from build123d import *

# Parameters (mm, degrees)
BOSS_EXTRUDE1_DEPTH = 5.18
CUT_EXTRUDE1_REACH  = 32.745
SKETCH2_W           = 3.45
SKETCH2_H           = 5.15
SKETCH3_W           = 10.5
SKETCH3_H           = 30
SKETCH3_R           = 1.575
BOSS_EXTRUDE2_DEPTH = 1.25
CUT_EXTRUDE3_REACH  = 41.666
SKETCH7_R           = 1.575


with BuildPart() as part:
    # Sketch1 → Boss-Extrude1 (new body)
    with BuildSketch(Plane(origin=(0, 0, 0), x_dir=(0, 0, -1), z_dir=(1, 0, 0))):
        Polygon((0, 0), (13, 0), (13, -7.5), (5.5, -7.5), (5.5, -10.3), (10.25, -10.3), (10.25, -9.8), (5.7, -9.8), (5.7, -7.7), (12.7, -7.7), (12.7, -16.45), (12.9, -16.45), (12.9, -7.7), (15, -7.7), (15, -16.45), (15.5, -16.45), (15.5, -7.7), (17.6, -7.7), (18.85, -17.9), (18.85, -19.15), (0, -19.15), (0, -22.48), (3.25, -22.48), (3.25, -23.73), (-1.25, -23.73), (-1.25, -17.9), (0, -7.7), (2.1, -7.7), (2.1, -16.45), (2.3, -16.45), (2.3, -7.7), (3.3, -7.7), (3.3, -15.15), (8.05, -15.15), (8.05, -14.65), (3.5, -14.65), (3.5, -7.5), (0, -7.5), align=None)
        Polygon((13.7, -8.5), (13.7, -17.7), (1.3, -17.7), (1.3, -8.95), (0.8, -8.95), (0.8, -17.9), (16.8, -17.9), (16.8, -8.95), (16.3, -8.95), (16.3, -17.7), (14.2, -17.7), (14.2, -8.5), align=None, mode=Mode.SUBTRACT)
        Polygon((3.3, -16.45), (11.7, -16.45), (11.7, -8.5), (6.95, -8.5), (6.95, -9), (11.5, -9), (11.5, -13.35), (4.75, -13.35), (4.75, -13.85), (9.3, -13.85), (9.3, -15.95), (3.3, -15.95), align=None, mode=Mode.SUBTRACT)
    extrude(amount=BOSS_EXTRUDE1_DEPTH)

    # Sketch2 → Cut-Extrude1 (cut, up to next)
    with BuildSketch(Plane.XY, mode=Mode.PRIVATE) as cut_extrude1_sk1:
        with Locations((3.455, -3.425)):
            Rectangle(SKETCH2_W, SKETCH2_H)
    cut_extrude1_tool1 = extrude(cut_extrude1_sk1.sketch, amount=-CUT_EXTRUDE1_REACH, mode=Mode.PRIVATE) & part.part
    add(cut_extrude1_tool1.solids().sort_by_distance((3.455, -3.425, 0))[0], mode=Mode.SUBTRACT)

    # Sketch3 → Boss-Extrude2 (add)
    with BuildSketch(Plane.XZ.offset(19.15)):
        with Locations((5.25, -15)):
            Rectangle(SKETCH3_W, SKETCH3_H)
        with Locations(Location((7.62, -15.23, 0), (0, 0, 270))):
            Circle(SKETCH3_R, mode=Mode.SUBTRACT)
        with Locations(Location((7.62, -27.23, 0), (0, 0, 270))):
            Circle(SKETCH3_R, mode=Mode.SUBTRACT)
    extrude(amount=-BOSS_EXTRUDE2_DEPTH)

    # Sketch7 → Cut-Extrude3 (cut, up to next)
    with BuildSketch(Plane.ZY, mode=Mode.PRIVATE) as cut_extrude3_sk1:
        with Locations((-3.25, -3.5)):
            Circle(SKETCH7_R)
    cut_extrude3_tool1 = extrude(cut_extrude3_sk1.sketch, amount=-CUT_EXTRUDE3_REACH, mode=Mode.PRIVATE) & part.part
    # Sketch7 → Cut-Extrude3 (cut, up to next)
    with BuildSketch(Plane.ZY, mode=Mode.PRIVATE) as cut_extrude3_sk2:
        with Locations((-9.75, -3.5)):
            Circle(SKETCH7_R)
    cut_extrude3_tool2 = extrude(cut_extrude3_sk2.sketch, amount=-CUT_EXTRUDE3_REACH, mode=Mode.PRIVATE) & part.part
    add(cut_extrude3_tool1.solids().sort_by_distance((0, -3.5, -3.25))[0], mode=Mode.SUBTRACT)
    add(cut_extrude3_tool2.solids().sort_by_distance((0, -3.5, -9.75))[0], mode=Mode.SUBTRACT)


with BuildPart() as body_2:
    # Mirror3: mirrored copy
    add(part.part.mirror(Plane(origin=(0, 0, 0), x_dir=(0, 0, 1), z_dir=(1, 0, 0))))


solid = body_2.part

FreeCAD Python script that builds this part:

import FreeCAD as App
import Part
import Sketcher
from FreeCAD import Vector
Q = App.Units.Quantity

doc = App.newDocument("Part")
params = doc.addObject("Spreadsheet::Sheet", "Params")
for row, (alias, value) in enumerate([
    ("sketch1_height", "13 mm"),
    ("sketch1_height2", "1 mm"),
    ("sketch1_height3", "7 mm"),
    ("sketch1_height4", "16 mm"),
    ("sketch1_height5", "6 mm"),
    ("pad1_length", "5.18 mm"),
    ("sketch2_width", "3.45 mm"),
    ("sketch2_height", "5.15 mm"),
    ("sketch3_diameter", "3.15 mm"),
    ("sketch3_height", "30 mm"),
    ("sketch3_width", "10.5 mm"),
    ("pad2_length", "1.25 mm"),
    ("sketch4_diameter", "3.15 mm"),
    ("sketch5_diameter", "3.15 mm"),
], start=1):
    params.set(f"A{row}", alias)
    params.set(f"B{row}", "=" + value)
    params.setAlias(f"B{row}", alias)

body = doc.addObject("PartDesign::Body", "Body")

sketch1 = doc.addObject("Sketcher::SketchObject", "Sketch")
body.addObject(sketch1)
sketch1.AttachmentSupport = (doc.YZ_Plane, [""])
sketch1.MapMode = "FlatFace"
sketch1.addGeometry([
    Part.LineSegment(Vector(0, -13, 0), Vector(0, 0, 0)),
    Part.LineSegment(Vector(0, 0, 0), Vector(-7.5, 0, 0)),
    Part.LineSegment(Vector(-7.5, 0, 0), Vector(-7.5, -3.5, 0)),
    Part.LineSegment(Vector(-7.5, -3.5, 0), Vector(-14.65, -3.5, 0)),
    Part.LineSegment(Vector(-14.65, -3.5, 0), Vector(-14.65, -8.05, 0)),
    Part.LineSegment(Vector(-14.65, -8.05, 0), Vector(-15.15, -8.05, 0)),
    Part.LineSegment(Vector(-15.15, -8.05, 0), Vector(-15.15, -3.3, 0)),
    Part.LineSegment(Vector(-15.15, -3.3, 0), Vector(-7.7, -3.3, 0)),
    Part.LineSegment(Vector(-7.7, -3.3, 0), Vector(-7.7, -2.3, 0)),
    Part.LineSegment(Vector(-7.7, -2.3, 0), Vector(-16.45, -2.3, 0)),
    Part.LineSegment(Vector(-16.45, -2.3, 0), Vector(-16.45, -2.1, 0)),
    Part.LineSegment(Vector(-16.45, -2.1, 0), Vector(-7.7, -2.1, 0)),
    Part.LineSegment(Vector(-7.7, -2.1, 0), Vector(-7.7, 0, 0)),
    Part.LineSegment(Vector(-7.7, 0, 0), Vector(-17.9, 1.25, 0)),
    Part.LineSegment(Vector(-17.9, 1.25, 0), Vector(-23.73, 1.25, 0)),
    Part.LineSegment(Vector(-23.73, 1.25, 0), Vector(-23.73, -3.25, 0)),
    Part.LineSegment(Vector(-23.73, -3.25, 0), Vector(-22.48, -3.25, 0)),
    Part.LineSegment(Vector(-22.48, -3.25, 0), Vector(-22.48, 0, 0)),
    Part.LineSegment(Vector(-22.48, 0, 0), Vector(-19.15, 0, 0)),
    Part.LineSegment(Vector(-19.15, 0, 0), Vector(-19.15, -18.85, 0)),
    Part.LineSegment(Vector(-19.15, -18.85, 0), Vector(-17.9, -18.85, 0)),
    Part.LineSegment(Vector(-17.9, -18.85, 0), Vector(-7.7, -17.6, 0)),
    Part.LineSegment(Vector(-7.7, -17.6, 0), Vector(-7.7, -15.5, 0)),
    Part.LineSegment(Vector(-7.7, -15.5, 0), Vector(-16.45, -15.5, 0)),
    Part.LineSegment(Vector(-16.45, -15.5, 0), Vector(-16.45, -15, 0)),
    Part.LineSegment(Vector(-16.45, -15, 0), Vector(-7.7, -15, 0)),
    Part.LineSegment(Vector(-7.7, -15, 0), Vector(-7.7, -12.9, 0)),
    Part.LineSegment(Vector(-7.7, -12.9, 0), Vector(-16.45, -12.9, 0)),
    Part.LineSegment(Vector(-16.45, -12.9, 0), Vector(-16.45, -12.7, 0)),
    Part.LineSegment(Vector(-16.45, -12.7, 0), Vector(-7.7, -12.7, 0)),
    Part.LineSegment(Vector(-7.7, -12.7, 0), Vector(-7.7, -5.7, 0)),
    Part.LineSegment(Vector(-7.7, -5.7, 0), Vector(-9.8, -5.7, 0)),
    Part.LineSegment(Vector(-9.8, -5.7, 0), Vector(-9.8, -10.25, 0)),
    Part.LineSegment(Vector(-9.8, -10.25, 0), Vector(-10.3, -10.25, 0)),
    Part.LineSegment(Vector(-10.3, -10.25, 0), Vector(-10.3, -5.5, 0)),
    Part.LineSegment(Vector(-10.3, -5.5, 0), Vector(-7.5, -5.5, 0)),
    Part.LineSegment(Vector(-7.5, -5.5, 0), Vector(-7.5, -13, 0)),
    Part.LineSegment(Vector(-7.5, -13, 0), Vector(0, -13, 0)),
    Part.LineSegment(Vector(-8.5, -13.7, 0), Vector(-8.5, -14.2, 0)),
    Part.LineSegment(Vector(-8.5, -14.2, 0), Vector(-17.7, -14.2, 0)),
    Part.LineSegment(Vector(-17.7, -14.2, 0), Vector(-17.7, -16.3, 0)),
    Part.LineSegment(Vector(-17.7, -16.3, 0), Vector(-8.95, -16.3, 0)),
    Part.LineSegment(Vector(-8.95, -16.3, 0), Vector(-8.95, -16.8, 0)),
    Part.LineSegment(Vector(-8.95, -16.8, 0), Vector(-17.9, -16.8, 0)),
    Part.LineSegment(Vector(-17.9, -16.8, 0), Vector(-17.9, -0.8, 0)),
    Part.LineSegment(Vector(-17.9, -0.8, 0), Vector(-8.95, -0.8, 0)),
    Part.LineSegment(Vector(-8.95, -0.8, 0), Vector(-8.95, -1.3, 0)),
    Part.LineSegment(Vector(-8.95, -1.3, 0), Vector(-17.7, -1.3, 0)),
    Part.LineSegment(Vector(-17.7, -1.3, 0), Vector(-17.7, -13.7, 0)),
    Part.LineSegment(Vector(-17.7, -13.7, 0), Vector(-8.5, -13.7, 0)),
    Part.LineSegment(Vector(-16.45, -3.3, 0), Vector(-15.95, -3.3, 0)),
    Part.LineSegment(Vector(-15.95, -3.3, 0), Vector(-15.95, -9.3, 0)),
    Part.LineSegment(Vector(-15.95, -9.3, 0), Vector(-13.85, -9.3, 0)),
    Part.LineSegment(Vector(-13.85, -9.3, 0), Vector(-13.85, -4.75, 0)),
    Part.LineSegment(Vector(-13.85, -4.75, 0), Vector(-13.35, -4.75, 0)),
    Part.LineSegment(Vector(-13.35, -4.75, 0), Vector(-13.35, -11.5, 0)),
    Part.LineSegment(Vector(-13.35, -11.5, 0), Vector(-9, -11.5, 0)),
    Part.LineSegment(Vector(-9, -11.5, 0), Vector(-9, -6.95, 0)),
    Part.LineSegment(Vector(-9, -6.95, 0), Vector(-8.5, -6.95, 0)),
    Part.LineSegment(Vector(-8.5, -6.95, 0), Vector(-8.5, -11.7, 0)),
    Part.LineSegment(Vector(-8.5, -11.7, 0), Vector(-16.45, -11.7, 0)),
    Part.LineSegment(Vector(-16.45, -11.7, 0), Vector(-16.45, -3.3, 0)),
], False)
sketch1.addConstraint([
    Sketcher.Constraint("Coincident", 0, 2, 1, 1),
    Sketcher.Constraint("Coincident", 1, 2, 2, 1),
    Sketcher.Constraint("Coincident", 2, 2, 3, 1),
    Sketcher.Constraint("Coincident", 3, 2, 4, 1),
    Sketcher.Constraint("Coincident", 4, 2, 5, 1),
    Sketcher.Constraint("Coincident", 5, 2, 6, 1),
    Sketcher.Constraint("Coincident", 6, 2, 7, 1),
    Sketcher.Constraint("Coincident", 7, 2, 8, 1),
    Sketcher.Constraint("Coincident", 8, 2, 9, 1),
    Sketcher.Constraint("Coincident", 9, 2, 10, 1),
    Sketcher.Constraint("Coincident", 10, 2, 11, 1),
    Sketcher.Constraint("Coincident", 11, 2, 12, 1),
    Sketcher.Constraint("Coincident", 12, 2, 13, 1),
    Sketcher.Constraint("Coincident", 13, 2, 14, 1),
    Sketcher.Constraint("Coincident", 14, 2, 15, 1),
    Sketcher.Constraint("Coincident", 15, 2, 16, 1),
    Sketcher.Constraint("Coincident", 16, 2, 17, 1),
    Sketcher.Constraint("Coincident", 17, 2, 18, 1),
    Sketcher.Constraint("Coincident", 18, 2, 19, 1),
    Sketcher.Constraint("Coincident", 19, 2, 20, 1),
    Sketcher.Constraint("Coincident", 20, 2, 21, 1),
    Sketcher.Constraint("Coincident", 21, 2, 22, 1),
    Sketcher.Constraint("Coincident", 22, 2, 23, 1),
    Sketcher.Constraint("Coincident", 23, 2, 24, 1),
    Sketcher.Constraint("Coincident", 24, 2, 25, 1),
    Sketcher.Constraint("Coincident", 25, 2, 26, 1),
    Sketcher.Constraint("Coincident", 26, 2, 27, 1),
    Sketcher.Constraint("Coincident", 27, 2, 28, 1),
    Sketcher.Constraint("Coincident", 28, 2, 29, 1),
    Sketcher.Constraint("Coincident", 29, 2, 30, 1),
    Sketcher.Constraint("Coincident", 30, 2, 31, 1),
    Sketcher.Constraint("Coincident", 31, 2, 32, 1),
    Sketcher.Constraint("Coincident", 32, 2, 33, 1),
    Sketcher.Constraint("Coincident", 33, 2, 34, 1),
    Sketcher.Constraint("Coincident", 34, 2, 35, 1),
    Sketcher.Constraint("Coincident", 35, 2, 36, 1),
    Sketcher.Constraint("Coincident", 36, 2, 37, 1),
    Sketcher.Constraint("Coincident", 37, 2, 0, 1),
    Sketcher.Constraint("Coincident", 38, 2, 39, 1),
    Sketcher.Constraint("Coincident", 39, 2, 40, 1),
    Sketcher.Constraint("Coincident", 40, 2, 41, 1),
    Sketcher.Constraint("Coincident", 41, 2, 42, 1),
    Sketcher.Constraint("Coincident", 42, 2, 43, 1),
    Sketcher.Constraint("Coincident", 43, 2, 44, 1),
    Sketcher.Constraint("Coincident", 44, 2, 45, 1),
    Sketcher.Constraint("Coincident", 45, 2, 46, 1),
    Sketcher.Constraint("Coincident", 46, 2, 47, 1),
    Sketcher.Constraint("Coincident", 47, 2, 48, 1),
    Sketcher.Constraint("Coincident", 48, 2, 49, 1),
    Sketcher.Constraint("Coincident", 49, 2, 38, 1),
    Sketcher.Constraint("Coincident", 50, 2, 51, 1),
    Sketcher.Constraint("Coincident", 51, 2, 52, 1),
    Sketcher.Constraint("Coincident", 52, 2, 53, 1),
    Sketcher.Constraint("Coincident", 53, 2, 54, 1),
    Sketcher.Constraint("Coincident", 54, 2, 55, 1),
    Sketcher.Constraint("Coincident", 55, 2, 56, 1),
    Sketcher.Constraint("Coincident", 56, 2, 57, 1),
    Sketcher.Constraint("Coincident", 57, 2, 58, 1),
    Sketcher.Constraint("Coincident", 58, 2, 59, 1),
    Sketcher.Constraint("Coincident", 59, 2, 60, 1),
    Sketcher.Constraint("Coincident", 60, 2, 61, 1),
    Sketcher.Constraint("Coincident", 61, 2, 50, 1),
    Sketcher.Constraint("Vertical", 0),
    Sketcher.Constraint("Horizontal", 1),
    Sketcher.Constraint("Vertical", 2),
    Sketcher.Constraint("Horizontal", 3),
    Sketcher.Constraint("Vertical", 4),
    Sketcher.Constraint("Horizontal", 5),
    Sketcher.Constraint("Vertical", 6),
    Sketcher.Constraint("Horizontal", 7),
    Sketcher.Constraint("Vertical", 8),
    Sketcher.Constraint("Horizontal", 9),
    Sketcher.Constraint("Vertical", 10),
    Sketcher.Constraint("Horizontal", 11),
    Sketcher.Constraint("Vertical", 12),
    Sketcher.Constraint("Horizontal", 14),
    Sketcher.Constraint("Vertical", 15),
    Sketcher.Constraint("Horizontal", 16),
    Sketcher.Constraint("Vertical", 17),
    Sketcher.Constraint("Horizontal", 18),
    Sketcher.Constraint("Vertical", 19),
    Sketcher.Constraint("Horizontal", 20),
    Sketcher.Constraint("Vertical", 22),
    Sketcher.Constraint("Horizontal", 23),
    Sketcher.Constraint("Vertical", 24),
    Sketcher.Constraint("Horizontal", 25),
    Sketcher.Constraint("Vertical", 26),
    Sketcher.Constraint("Horizontal", 27),
    Sketcher.Constraint("Vertical", 28),
    Sketcher.Constraint("Horizontal", 29),
    Sketcher.Constraint("Vertical", 30),
    Sketcher.Constraint("Horizontal", 31),
    Sketcher.Constraint("Vertical", 32),
    Sketcher.Constraint("Horizontal", 33),
    Sketcher.Constraint("Vertical", 34),
    Sketcher.Constraint("Horizontal", 35),
    Sketcher.Constraint("Vertical", 36),
    Sketcher.Constraint("Horizontal", 37),
    Sketcher.Constraint("Vertical", 38),
    Sketcher.Constraint("Horizontal", 39),
    Sketcher.Constraint("Vertical", 40),
    Sketcher.Constraint("Horizontal", 41),
    Sketcher.Constraint("Vertical", 42),
    Sketcher.Constraint("Horizontal", 43),
    Sketcher.Constraint("Vertical", 44),
    Sketcher.Constraint("Horizontal", 45),
    Sketcher.Constraint("Vertical", 46),
    Sketcher.Constraint("Horizontal", 47),
    Sketcher.Constraint("Vertical", 48),
    Sketcher.Constraint("Horizontal", 49),
    Sketcher.Constraint("Horizontal", 50),
    Sketcher.Constraint("Vertical", 51),
    Sketcher.Constraint("Horizontal", 52),
    Sketcher.Constraint("Vertical", 53),
    Sketcher.Constraint("Horizontal", 54),
    Sketcher.Constraint("Vertical", 55),
    Sketcher.Constraint("Horizontal", 56),
    Sketcher.Constraint("Vertical", 57),
    Sketcher.Constraint("Horizontal", 58),
    Sketcher.Constraint("Vertical", 59),
    Sketcher.Constraint("Horizontal", 60),
    Sketcher.Constraint("Vertical", 61),
    Sketcher.Constraint("Coincident", 0, 2, -1, 1),
    Sketcher.Constraint("PointOnObject", 12, 2, -1),
    Sketcher.Constraint("PointOnObject", 17, 2, -1),
    Sketcher.Constraint("Horizontal", 7, 2, 50, 2),
    Sketcher.Constraint("Vertical", 8, 2, 11, 2),
    Sketcher.Constraint("Vertical", 13, 2, 20, 2),
    Sketcher.Constraint("Vertical", 12, 2, 21, 2),
    Sketcher.Constraint("Vertical", 10, 2, 23, 2),
    Sketcher.Constraint("Vertical", 22, 2, 25, 2),
    Sketcher.Constraint("Vertical", 24, 2, 27, 2),
    Sketcher.Constraint("Vertical", 26, 2, 29, 2),
    Sketcher.Constraint("Vertical", 2, 2, 35, 2),
    Sketcher.Constraint("Vertical", 20, 2, 43, 2),
    Sketcher.Constraint("Vertical", 42, 2, 45, 2),
    Sketcher.Constraint("Vertical", 40, 2, 47, 2),
    Sketcher.Constraint("Vertical", 49, 2, 58, 2),
    Sketcher.Constraint("Vertical", 28, 2, 60, 2),
    Sketcher.Constraint("Equal", 16, 20),
    Sketcher.Constraint("Equal", 5, 33),
    Sketcher.Constraint("Equal", 29, 41),
    Sketcher.Constraint("Equal", 33, 50),
    Sketcher.Constraint("Equal", 31, 52),
    Sketcher.Constraint("Equal", 50, 54),
    Sketcher.Constraint("Equal", 54, 58),
    Sketcher.Constraint("Equal", 52, 12),
    Sketcher.Constraint("Equal", 12, 22),
    Sketcher.Constraint("Equal", 58, 24),
    Sketcher.Constraint("Equal", 22, 26),
    Sketcher.Constraint("Equal", 10, 28),
    Sketcher.Constraint("Equal", 4, 32),
    Sketcher.Constraint("Equal", 6, 34),
    Sketcher.Constraint("Equal", 37, 36),
    Sketcher.Constraint("Equal", 24, 38),
    Sketcher.Constraint("Equal", 26, 40),
    Sketcher.Constraint("Equal", 38, 42),
    Sketcher.Constraint("Equal", 42, 46),
    Sketcher.Constraint("Equal", 32, 53),
    Sketcher.Constraint("Equal", 53, 57),
    Sketcher.Constraint("Equal", 34, 59),
    Sketcher.Constraint("Equal", 13, 21),
    Sketcher.Constraint("DistanceY", 0, 1, 0, 2, Q("13 mm")),
    Sketcher.Constraint("DistanceY", 8, 1, 8, 2, Q("1 mm")),
    Sketcher.Constraint("DistanceY", 30, 1, 30, 2, Q("7 mm")),
    Sketcher.Constraint("DistanceY", 44, 1, 44, 2, Q("16 mm")),
    Sketcher.Constraint("DistanceY", 51, 2, 51, 1, Q("6 mm")),
    Sketcher.Constraint("DistanceX", 1, 2, 1, 1, Q("7.5 mm")),
    Sketcher.Constraint("DistanceX", 5, 2, 5, 1, Q("0.5 mm")),
    Sketcher.Constraint("DistanceX", 31, 2, 31, 1, Q("2.1 mm")),
    Sketcher.Constraint("DistanceX", 35, 1, 35, 2, Q("2.8 mm")),
    Sketcher.Constraint("DistanceX", 39, 2, 39, 1, Q("9.2 mm")),
    Sketcher.Constraint("DistanceY", 2, 2, 2, 1, Q("3.5 mm")),
    Sketcher.Constraint("DistanceY", 10, 1, 10, 2, Q("0.2 mm")),
    Sketcher.Constraint("DistanceY", 15, 2, 15, 1, Q("4.5 mm")),
    Sketcher.Constraint("DistanceY", 61, 1, 61, 2, Q("8.4 mm")),
    Sketcher.Constraint("DistanceX", 56, 2, -1, 1, Q("9 mm")),
    Sketcher.Constraint("DistanceX", 3, 2, 3, 1, Q("7.15 mm")),
    Sketcher.Constraint("DistanceX", 9, 2, 9, 1, Q("8.75 mm")),
    Sketcher.Constraint("DistanceX", 14, 2, 14, 1, Q("5.83 mm")),
    Sketcher.Constraint("DistanceX", 16, 1, 16, 2, Q("1.25 mm")),
    Sketcher.Constraint("DistanceX", 43, 2, 43, 1, Q("8.95 mm")),
    Sketcher.Constraint("DistanceY", 4, 2, 4, 1, Q("4.55 mm")),
    Sketcher.Constraint("DistanceY", 17, 1, 17, 2, Q("3.25 mm")),
    Sketcher.Constraint("DistanceY", 38, 2, -1, 1, Q("14.2 mm")),
])
sketch1.setExpression("Constraints[162]", "Params.sketch1_height")
sketch1.setExpression("Constraints[163]", "Params.sketch1_height2")
sketch1.setExpression("Constraints[164]", "Params.sketch1_height3")
sketch1.setExpression("Constraints[165]", "Params.sketch1_height4")
sketch1.setExpression("Constraints[166]", "Params.sketch1_height5")
pad1 = doc.addObject("PartDesign::Pad", "Pad")
body.addObject(pad1)
pad1.Profile = sketch1
pad1.setExpression("Length", "Params.pad1_length")

sketch2 = doc.addObject("Sketcher::SketchObject", "Sketch001")
body.addObject(sketch2)
sketch2.AttachmentSupport = (doc.XY_Plane, [""])
sketch2.MapMode = "FlatFace"
sketch2.addGeometry([
    Part.LineSegment(Vector(1.7, -0.8, 0), Vector(1.7, -6, 0)),
    Part.LineSegment(Vector(1.7, -6, 0), Vector(5.2, -6, 0)),
    Part.LineSegment(Vector(5.2, -6, 0), Vector(5.2, -0.8, 0)),
    Part.LineSegment(Vector(5.2, -0.8, 0), Vector(1.7, -0.8, 0)),
], False)
sketch2.addConstraint([
    Sketcher.Constraint("Coincident", 0, 2, 1, 1),
    Sketcher.Constraint("Coincident", 1, 2, 2, 1),
    Sketcher.Constraint("Coincident", 2, 2, 3, 1),
    Sketcher.Constraint("Coincident", 3, 2, 0, 1),
    Sketcher.Constraint("Vertical", 0),
    Sketcher.Constraint("Horizontal", 1),
    Sketcher.Constraint("Vertical", 2),
    Sketcher.Constraint("Horizontal", 3),
    Sketcher.Constraint("DistanceY", 0, 2, -1, 1, Q("6 mm")),
    Sketcher.Constraint("DistanceX", 1, 1, 1, 2, Q("3.45 mm")),
    Sketcher.Constraint("DistanceY", 0, 2, 0, 1, Q("5.15 mm")),
    Sketcher.Constraint("DistanceX", -1, 1, 0, 2, Q("1.73 mm")),
])
sketch2.setExpression("Constraints[9]", "Params.sketch2_width")
sketch2.setExpression("Constraints[10]", "Params.sketch2_height")
pocket1 = doc.addObject("PartDesign::Pocket", "Pocket")
body.addObject(pocket1)
pocket1.Profile = sketch2
pocket1.Type = "UpToFirst"

sketch3 = doc.addObject("Sketcher::SketchObject", "Sketch002")
body.addObject(sketch3)
sketch3.AttachmentSupport = (doc.XZ_Plane, [""])
sketch3.MapMode = "FlatFace"
sketch3.AttachmentOffset = App.Placement(Vector(0, 0, 19.15), App.Rotation())
sketch3.addGeometry([
    Part.LineSegment(Vector(0, 0, 0), Vector(0, -30, 0)),
    Part.LineSegment(Vector(0, -30, 0), Vector(10.5, -30, 0)),
    Part.LineSegment(Vector(10.5, -30, 0), Vector(10.5, 0, 0)),
    Part.LineSegment(Vector(10.5, 0, 0), Vector(0, 0, 0)),
    Part.Circle(Vector(7.6, -27.2, 0), Vector(0, 0, 1), 1.6),
    Part.Circle(Vector(7.6, -15.2, 0), Vector(0, 0, 1), 1.6),
], False)
sketch3.addConstraint([
    Sketcher.Constraint("Coincident", 0, 2, 1, 1),
    Sketcher.Constraint("Coincident", 1, 2, 2, 1),
    Sketcher.Constraint("Coincident", 2, 2, 3, 1),
    Sketcher.Constraint("Coincident", 3, 2, 0, 1),
    Sketcher.Constraint("Vertical", 0),
    Sketcher.Constraint("Horizontal", 1),
    Sketcher.Constraint("Vertical", 2),
    Sketcher.Constraint("Horizontal", 3),
    Sketcher.Constraint("Coincident", 3, 2, -1, 1),
    Sketcher.Constraint("Equal", 4, 5),
    Sketcher.Constraint("Vertical", 4, 3, 5, 3),
    Sketcher.Constraint("Diameter", 4, Q("3.15 mm")),
    Sketcher.Constraint("DistanceY", 0, 2, 0, 1, Q("30 mm")),
    Sketcher.Constraint("DistanceX", 1, 1, 1, 2, Q("10.5 mm")),
    Sketcher.Constraint("DistanceY", 4, 3, 5, 3, Q("12 mm")),
    Sketcher.Constraint("DistanceX", -1, 1, 4, 3, Q("7.62 mm")),
    Sketcher.Constraint("DistanceY", 4, 3, -1, 1, Q("27.23 mm")),
])
sketch3.setExpression("Constraints[11]", "Params.sketch3_diameter")
sketch3.setExpression("Constraints[12]", "Params.sketch3_height")
sketch3.setExpression("Constraints[13]", "Params.sketch3_width")
pad2 = doc.addObject("PartDesign::Pad", "Pad001")
body.addObject(pad2)
pad2.Profile = sketch3
pad2.setExpression("Length", "Params.pad2_length")
pad2.Reversed = True

sketch4 = doc.addObject("Sketcher::SketchObject", "Sketch003")
body.addObject(sketch4)
sketch4.AttachmentSupport = (doc.YZ_Plane, [""])
sketch4.MapMode = "FlatFace"
sketch4.addGeometry(Part.Circle(Vector(-3.5, -3.2, 0), Vector(0, 0, 1), 1.6), False)
sketch4.addConstraint([
    Sketcher.Constraint("Diameter", 0, Q("3.15 mm")),
    Sketcher.Constraint("DistanceX", 0, 3, -1, 1, Q("3.5 mm")),
    Sketcher.Constraint("DistanceY", 0, 3, -1, 1, Q("3.25 mm")),
])
sketch4.setExpression("Constraints[0]", "Params.sketch4_diameter")
pocket2 = doc.addObject("PartDesign::Pocket", "Pocket001")
body.addObject(pocket2)
pocket2.Profile = sketch4
pocket2.Type = "UpToFirst"
pocket2.Reversed = True

sketch5 = doc.addObject("Sketcher::SketchObject", "Sketch004")
body.addObject(sketch5)
sketch5.AttachmentSupport = (doc.YZ_Plane, [""])
sketch5.MapMode = "FlatFace"
sketch5.addGeometry(Part.Circle(Vector(-3.5, -9.8, 0), Vector(0, 0, 1), 1.6), False)
sketch5.addConstraint([
    Sketcher.Constraint("Diameter", 0, Q("3.15 mm")),
    Sketcher.Constraint("DistanceX", 0, 3, -1, 1, Q("3.5 mm")),
    Sketcher.Constraint("DistanceY", 0, 3, -1, 1, Q("9.75 mm")),
])
sketch5.setExpression("Constraints[0]", "Params.sketch5_diameter")
pocket3 = doc.addObject("PartDesign::Pocket", "Pocket002")
body.addObject(pocket3)
pocket3.Profile = sketch5
pocket3.Type = "UpToFirst"
pocket3.Reversed = True
body2 = doc.addObject("PartDesign::Body", "Body001")
doc.recompute()

mirroring = doc.addObject("Part::Mirroring", "Mirroring")
mirroring.Source = body
mirroring.Base = Vector(0, 0, 0)
mirroring.Normal = Vector(1, 0, 0)
body2.BaseFeature = mirroring
doc.recompute()
body.Visibility = False
mirroring.Visibility = False

doc.recompute()
